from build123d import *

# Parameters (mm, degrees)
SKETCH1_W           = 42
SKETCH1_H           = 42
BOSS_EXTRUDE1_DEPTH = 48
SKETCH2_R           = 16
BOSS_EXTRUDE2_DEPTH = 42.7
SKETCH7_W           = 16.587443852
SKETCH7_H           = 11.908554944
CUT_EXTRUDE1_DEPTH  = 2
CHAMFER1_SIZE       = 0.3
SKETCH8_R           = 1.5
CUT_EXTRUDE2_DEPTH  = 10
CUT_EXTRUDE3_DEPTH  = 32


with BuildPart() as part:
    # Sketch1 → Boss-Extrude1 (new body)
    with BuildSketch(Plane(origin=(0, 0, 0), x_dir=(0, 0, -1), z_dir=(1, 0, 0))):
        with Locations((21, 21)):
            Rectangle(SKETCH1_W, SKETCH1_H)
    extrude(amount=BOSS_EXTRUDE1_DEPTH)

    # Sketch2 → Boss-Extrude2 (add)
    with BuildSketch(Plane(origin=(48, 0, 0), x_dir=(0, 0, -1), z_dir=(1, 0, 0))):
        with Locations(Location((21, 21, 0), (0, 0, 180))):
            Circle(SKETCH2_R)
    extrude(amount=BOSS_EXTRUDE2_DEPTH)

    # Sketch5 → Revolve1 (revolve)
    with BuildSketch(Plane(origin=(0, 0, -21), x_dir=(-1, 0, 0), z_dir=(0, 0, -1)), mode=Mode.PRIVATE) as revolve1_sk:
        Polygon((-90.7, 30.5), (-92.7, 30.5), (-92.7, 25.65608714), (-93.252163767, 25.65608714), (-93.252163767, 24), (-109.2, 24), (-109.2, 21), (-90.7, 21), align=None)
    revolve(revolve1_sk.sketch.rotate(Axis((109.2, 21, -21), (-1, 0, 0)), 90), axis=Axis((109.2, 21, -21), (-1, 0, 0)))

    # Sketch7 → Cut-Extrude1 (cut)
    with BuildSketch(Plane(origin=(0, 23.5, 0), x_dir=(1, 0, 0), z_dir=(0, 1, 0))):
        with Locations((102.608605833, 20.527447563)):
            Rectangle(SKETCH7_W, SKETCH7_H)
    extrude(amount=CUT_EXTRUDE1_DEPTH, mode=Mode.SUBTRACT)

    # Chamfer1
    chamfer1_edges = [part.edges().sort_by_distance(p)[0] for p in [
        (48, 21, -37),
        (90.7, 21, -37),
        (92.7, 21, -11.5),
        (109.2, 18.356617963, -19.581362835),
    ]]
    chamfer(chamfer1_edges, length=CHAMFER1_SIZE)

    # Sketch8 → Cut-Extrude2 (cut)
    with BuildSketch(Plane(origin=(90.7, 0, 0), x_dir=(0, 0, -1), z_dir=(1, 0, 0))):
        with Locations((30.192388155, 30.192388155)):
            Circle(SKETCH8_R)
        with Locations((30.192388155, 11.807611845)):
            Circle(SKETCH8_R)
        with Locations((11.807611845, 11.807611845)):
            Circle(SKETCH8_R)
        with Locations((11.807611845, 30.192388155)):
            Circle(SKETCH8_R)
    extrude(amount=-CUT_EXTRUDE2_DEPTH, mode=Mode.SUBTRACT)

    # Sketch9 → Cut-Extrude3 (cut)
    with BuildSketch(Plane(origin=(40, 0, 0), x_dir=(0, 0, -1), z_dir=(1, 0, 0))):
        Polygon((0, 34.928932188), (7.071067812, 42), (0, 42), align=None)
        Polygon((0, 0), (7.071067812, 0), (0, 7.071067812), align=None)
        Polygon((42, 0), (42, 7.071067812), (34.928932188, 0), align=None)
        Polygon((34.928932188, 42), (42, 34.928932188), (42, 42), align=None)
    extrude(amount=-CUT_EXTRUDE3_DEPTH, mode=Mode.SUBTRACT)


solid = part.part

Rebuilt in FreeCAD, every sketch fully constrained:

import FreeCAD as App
import Part
import Sketcher
from FreeCAD import Vector
Q = App.Units.Quantity


def edges_at(feature, points):
    """Names of the edges that pass closest to the given points."""
    edges = feature.Shape.Edges
    near = lambda p: min(range(len(edges)), key=lambda i: edges[i].distToShape(Part.Vertex(*p))[0])
    return sorted({f"Edge{near(p) + 1}" for p in points})


def add_polygon(sketch, points):
    """Adds a closed chain of lines whose ends are joined by coincident constraints."""
    first, n = sketch.GeometryCount, len(points)
    for a, b in zip(points, points[1:] + points[:1]):
        sketch.addGeometry(Part.LineSegment(App.Vector(*a, 0), App.Vector(*b, 0)), False)
    for i in range(n):
        sketch.addConstraint(Sketcher.Constraint("Coincident", first + i, 2, first + (i + 1) % n, 1))

doc = App.newDocument("Part")
body = doc.addObject("PartDesign::Body", "Body")

# Sketch on YZ plane
sketch1 = body.newObject("Sketcher::SketchObject", "Sketch")
sketch1.AttachmentSupport = (doc.getObject("YZ_Plane"), [""])
sketch1.MapMode = "FlatFace"
add_polygon(sketch1, [(42, 0), (0, 0), (0, -42), (42, -42)])  # lines 0-3
sketch1.addConstraint([
    Sketcher.Constraint("Horizontal", 0),
    Sketcher.Constraint("Vertical", 1),
    Sketcher.Constraint("Horizontal", 2),
    Sketcher.Constraint("Vertical", 3),
    Sketcher.Constraint("Coincident", 0, 2, -1, 1),
    Sketcher.Constraint("Equal", 2, 1),
    Sketcher.Constraint("DistanceX", 0, 2, 0, 1, Q("42 mm")),
])
pad1 = body.newObject("PartDesign::Pad", "Pad")
pad1.Profile = sketch1
pad1.Length = 48

# Sketch on YZ plane
sketch2 = body.newObject("Sketcher::SketchObject", "Sketch001")
sketch2.AttachmentSupport = (doc.getObject("YZ_Plane"), [""])
sketch2.MapMode = "FlatFace"
sketch2.AttachmentOffset = App.Placement(Vector(0, 0, 48), App.Rotation())
sketch2.addGeometry(Part.Circle(Vector(21, -21, 0), Vector(0, 0, 1), 16), False)
sketch2.addConstraint([
    Sketcher.Constraint("Diameter", 0, Q("32 mm")),
    Sketcher.Constraint("DistanceX", -1, 1, 0, 3, Q("21 mm")),
    Sketcher.Constraint("DistanceY", 0, 3, -1, 1, Q("21 mm")),
])
pad2 = body.newObject("PartDesign::Pad", "Pad001")
pad2.Profile = sketch2
pad2.Length = 42.7

# Sketch on XY plane
sketch3 = body.newObject("Sketcher::SketchObject", "Sketch002")
sketch3.AttachmentSupport = (doc.getObject("XY_Plane"), [""])
sketch3.MapMode = "FlatFace"
sketch3.AttachmentOffset = App.Placement(Vector(0, 0, -21), App.Rotation())
add_polygon(sketch3, [(90.7, 30.5), (92.7, 30.5), (92.7, 25.7), (93.3, 25.7), (93.3, 24), (109.2, 24), (109.2, 21), (90.7, 21)])  # lines 0-7
sketch3.addGeometry(Part.LineSegment(Vector(109.2, 21, 0), Vector(90.7, 21, 0)), True)  # axis
sketch3.addConstraint([
    Sketcher.Constraint("Horizontal", 0),
    Sketcher.Constraint("Vertical", 1),
    Sketcher.Constraint("Horizontal", 2),
    Sketcher.Constraint("Vertical", 3),
    Sketcher.Constraint("Horizontal", 4),
    Sketcher.Constraint("Vertical", 5),
    Sketcher.Constraint("Horizontal", 6),
    Sketcher.Constraint("Vertical", 7),
    Sketcher.Constraint("Horizontal", 8),
    Sketcher.Constraint("Coincident", 8, 1, 5, 2),
    Sketcher.Constraint("Vertical", 7, 2, 8, 2),
    Sketcher.Constraint("DistanceX", 0, 1, 0, 2, Q("2 mm")),
    Sketcher.Constraint("DistanceY", 5, 2, 5, 1, Q("3 mm")),
    Sketcher.Constraint("DistanceX", 6, 2, 6, 1, Q("18.5 mm")),
    Sketcher.Constraint("DistanceY", 7, 1, 7, 2, Q("9.5 mm")),
    Sketcher.Constraint("DistanceY", -1, 1, 3, 2, Q("24 mm")),
    Sketcher.Constraint("DistanceX", -1, 1, 0, 2, Q("92.7 mm")),
    Sketcher.Constraint("DistanceX", 2, 1, 2, 2, Q("0.552164 mm")),
    Sketcher.Constraint("DistanceY", 1, 2, 1, 1, Q("4.843913 mm")),
])
revolution = body.newObject("PartDesign::Revolution", "Revolution")
revolution.Profile = sketch3
revolution.ReferenceAxis = (sketch3, ["Axis0"])
revolution.Angle = 360

# Sketch on XZ plane
sketch4 = body.newObject("Sketcher::SketchObject", "Sketch003")
sketch4.AttachmentSupport = (doc.getObject("XZ_Plane"), [""])
sketch4.MapMode = "FlatFace"
sketch4.AttachmentOffset = App.Placement(Vector(0, 0, -23.5), App.Rotation())
add_polygon(sketch4, [(94, -26), (94, -15), (111, -15), (111, -26)])  # lines 0-3
sketch4.addConstraint([
    Sketcher.Constraint("Vertical", 0),
    Sketcher.Constraint("Horizontal", 1),
    Sketcher.Constraint("Vertical", 2),
    Sketcher.Constraint("Horizontal", 3),
    Sketcher.Constraint("DistanceX", 1, 1, 1, 2, Q("16.587444 mm")),
    Sketcher.Constraint("DistanceY", 0, 1, 0, 2, Q("11.908555 mm")),
    Sketcher.Constraint("DistanceY", 0, 2, -1, 1, Q("14.57317 mm")),
    Sketcher.Constraint("DistanceX", -1, 1, 0, 2, Q("94.314884 mm")),
])
pocket1 = body.newObject("PartDesign::Pocket", "Pocket")
pocket1.Profile = sketch4
pocket1.Length = 2
doc.recompute()

chamfer = body.newObject("PartDesign::Chamfer", "Chamfer")
chamfer.Base = (pocket1, edges_at(pocket1, [
    (48, 21, -37),
    (90.7, 21, -37),
    (92.7, 21, -11.5),
    (109.2, 18.357, -19.581),
]))
chamfer.Size = 0.3

# Sketch on YZ plane
sketch5 = body.newObject("Sketcher::SketchObject", "Sketch004")
sketch5.AttachmentSupport = (doc.getObject("YZ_Plane"), [""])
sketch5.MapMode = "FlatFace"
sketch5.AttachmentOffset = App.Placement(Vector(0, 0, 90.7), App.Rotation())
sketch5.addGeometry([
    Part.Circle(Vector(30.2, -30.2, 0), Vector(0, 0, 1), 1.5),
    Part.Circle(Vector(11.8, -30.2, 0), Vector(0, 0, 1), 1.5),
    Part.Circle(Vector(11.8, -11.8, 0), Vector(0, 0, 1), 1.5),
    Part.Circle(Vector(30.2, -11.8, 0), Vector(0, 0, 1), 1.5),
], False)
sketch5.addConstraint([
    Sketcher.Constraint("Equal", 0, 1),
    Sketcher.Constraint("Equal", 1, 2),
    Sketcher.Constraint("Equal", 2, 3),
    Sketcher.Constraint("Horizontal", 0, 3, 1, 3),
    Sketcher.Constraint("Horizontal", 2, 3, 3, 3),
    Sketcher.Constraint("Vertical", 1, 3, 2, 3),
    Sketcher.Constraint("Vertical", 0, 3, 3, 3),
    Sketcher.Constraint("Diameter", 0, Q("3 mm")),
    Sketcher.Constraint("DistanceX", -1, 1, 0, 3, Q("30.192388 mm")),
    Sketcher.Constraint("DistanceY", 0, 3, -1, 1, Q("30.192388 mm")),
    Sketcher.Constraint("DistanceX", -1, 1, 1, 3, Q("11.807612 mm")),
    Sketcher.Constraint("DistanceY", 2, 3, -1, 1, Q("11.807612 mm")),
])
pocket2 = body.newObject("PartDesign::Pocket", "Pocket001")
pocket2.Profile = sketch5
pocket2.Length = 10

# Sketch on YZ plane
sketch6 = body.newObject("Sketcher::SketchObject", "Sketch005")
sketch6.AttachmentSupport = (doc.getObject("YZ_Plane"), [""])
sketch6.MapMode = "FlatFace"
sketch6.AttachmentOffset = App.Placement(Vector(0, 0, 40), App.Rotation())
add_polygon(sketch6, [(35, 0), (42, -7), (42, 0)])  # lines 0-2
add_polygon(sketch6, [(0, 0), (0, -7), (7, 0)])  # lines 3-5
add_polygon(sketch6, [(0, -42), (7, -42), (0, -35)])  # lines 6-8
add_polygon(sketch6, [(42, -35), (35, -42), (42, -42)])  # lines 9-11
sketch6.addConstraint([
    Sketcher.Constraint("Vertical", 1),
    Sketcher.Constraint("Horizontal", 2),
    Sketcher.Constraint("Vertical", 3),
    Sketcher.Constraint("Horizontal", 5),
    Sketcher.Constraint("Horizontal", 6),
    Sketcher.Constraint("Vertical", 8),
    Sketcher.Constraint("Horizontal", 10),
    Sketcher.Constraint("Vertical", 11),
    Sketcher.Constraint("Coincident", 5, 2, -1, 1),
    Sketcher.Constraint("PointOnObject", 1, 2, -1),
    Sketcher.Constraint("PointOnObject", 7, 2, -2),
    Sketcher.Constraint("Perpendicular", 0, 4),
    Sketcher.Constraint("Perpendicular", 4, 7),
    Sketcher.Constraint("Perpendicular", 7, 9),
    Sketcher.Constraint("Horizontal", 0, 2, 3, 2),
    Sketcher.Constraint("Horizontal", 8, 2, 9, 2),
    Sketcher.Constraint("Horizontal", 7, 2, 11, 2),
    Sketcher.Constraint("Vertical", 4, 2, 6, 2),
    Sketcher.Constraint("Vertical", 2, 2, 9, 2),
    Sketcher.Constraint("Vertical", 1, 2, 10, 2),
    Sketcher.Constraint("Distance", 0, Q("10 mm")),
    Sketcher.Constraint("DistanceX", -1, 1, 0, 2, Q("42 mm")),
    Sketcher.Constraint("DistanceY", 6, 2, -1, 1, Q("42 mm")),
])
pocket3 = body.newObject("PartDesign::Pocket", "Pocket002")
pocket3.Profile = sketch6
pocket3.Length = 32

doc.recompute()
